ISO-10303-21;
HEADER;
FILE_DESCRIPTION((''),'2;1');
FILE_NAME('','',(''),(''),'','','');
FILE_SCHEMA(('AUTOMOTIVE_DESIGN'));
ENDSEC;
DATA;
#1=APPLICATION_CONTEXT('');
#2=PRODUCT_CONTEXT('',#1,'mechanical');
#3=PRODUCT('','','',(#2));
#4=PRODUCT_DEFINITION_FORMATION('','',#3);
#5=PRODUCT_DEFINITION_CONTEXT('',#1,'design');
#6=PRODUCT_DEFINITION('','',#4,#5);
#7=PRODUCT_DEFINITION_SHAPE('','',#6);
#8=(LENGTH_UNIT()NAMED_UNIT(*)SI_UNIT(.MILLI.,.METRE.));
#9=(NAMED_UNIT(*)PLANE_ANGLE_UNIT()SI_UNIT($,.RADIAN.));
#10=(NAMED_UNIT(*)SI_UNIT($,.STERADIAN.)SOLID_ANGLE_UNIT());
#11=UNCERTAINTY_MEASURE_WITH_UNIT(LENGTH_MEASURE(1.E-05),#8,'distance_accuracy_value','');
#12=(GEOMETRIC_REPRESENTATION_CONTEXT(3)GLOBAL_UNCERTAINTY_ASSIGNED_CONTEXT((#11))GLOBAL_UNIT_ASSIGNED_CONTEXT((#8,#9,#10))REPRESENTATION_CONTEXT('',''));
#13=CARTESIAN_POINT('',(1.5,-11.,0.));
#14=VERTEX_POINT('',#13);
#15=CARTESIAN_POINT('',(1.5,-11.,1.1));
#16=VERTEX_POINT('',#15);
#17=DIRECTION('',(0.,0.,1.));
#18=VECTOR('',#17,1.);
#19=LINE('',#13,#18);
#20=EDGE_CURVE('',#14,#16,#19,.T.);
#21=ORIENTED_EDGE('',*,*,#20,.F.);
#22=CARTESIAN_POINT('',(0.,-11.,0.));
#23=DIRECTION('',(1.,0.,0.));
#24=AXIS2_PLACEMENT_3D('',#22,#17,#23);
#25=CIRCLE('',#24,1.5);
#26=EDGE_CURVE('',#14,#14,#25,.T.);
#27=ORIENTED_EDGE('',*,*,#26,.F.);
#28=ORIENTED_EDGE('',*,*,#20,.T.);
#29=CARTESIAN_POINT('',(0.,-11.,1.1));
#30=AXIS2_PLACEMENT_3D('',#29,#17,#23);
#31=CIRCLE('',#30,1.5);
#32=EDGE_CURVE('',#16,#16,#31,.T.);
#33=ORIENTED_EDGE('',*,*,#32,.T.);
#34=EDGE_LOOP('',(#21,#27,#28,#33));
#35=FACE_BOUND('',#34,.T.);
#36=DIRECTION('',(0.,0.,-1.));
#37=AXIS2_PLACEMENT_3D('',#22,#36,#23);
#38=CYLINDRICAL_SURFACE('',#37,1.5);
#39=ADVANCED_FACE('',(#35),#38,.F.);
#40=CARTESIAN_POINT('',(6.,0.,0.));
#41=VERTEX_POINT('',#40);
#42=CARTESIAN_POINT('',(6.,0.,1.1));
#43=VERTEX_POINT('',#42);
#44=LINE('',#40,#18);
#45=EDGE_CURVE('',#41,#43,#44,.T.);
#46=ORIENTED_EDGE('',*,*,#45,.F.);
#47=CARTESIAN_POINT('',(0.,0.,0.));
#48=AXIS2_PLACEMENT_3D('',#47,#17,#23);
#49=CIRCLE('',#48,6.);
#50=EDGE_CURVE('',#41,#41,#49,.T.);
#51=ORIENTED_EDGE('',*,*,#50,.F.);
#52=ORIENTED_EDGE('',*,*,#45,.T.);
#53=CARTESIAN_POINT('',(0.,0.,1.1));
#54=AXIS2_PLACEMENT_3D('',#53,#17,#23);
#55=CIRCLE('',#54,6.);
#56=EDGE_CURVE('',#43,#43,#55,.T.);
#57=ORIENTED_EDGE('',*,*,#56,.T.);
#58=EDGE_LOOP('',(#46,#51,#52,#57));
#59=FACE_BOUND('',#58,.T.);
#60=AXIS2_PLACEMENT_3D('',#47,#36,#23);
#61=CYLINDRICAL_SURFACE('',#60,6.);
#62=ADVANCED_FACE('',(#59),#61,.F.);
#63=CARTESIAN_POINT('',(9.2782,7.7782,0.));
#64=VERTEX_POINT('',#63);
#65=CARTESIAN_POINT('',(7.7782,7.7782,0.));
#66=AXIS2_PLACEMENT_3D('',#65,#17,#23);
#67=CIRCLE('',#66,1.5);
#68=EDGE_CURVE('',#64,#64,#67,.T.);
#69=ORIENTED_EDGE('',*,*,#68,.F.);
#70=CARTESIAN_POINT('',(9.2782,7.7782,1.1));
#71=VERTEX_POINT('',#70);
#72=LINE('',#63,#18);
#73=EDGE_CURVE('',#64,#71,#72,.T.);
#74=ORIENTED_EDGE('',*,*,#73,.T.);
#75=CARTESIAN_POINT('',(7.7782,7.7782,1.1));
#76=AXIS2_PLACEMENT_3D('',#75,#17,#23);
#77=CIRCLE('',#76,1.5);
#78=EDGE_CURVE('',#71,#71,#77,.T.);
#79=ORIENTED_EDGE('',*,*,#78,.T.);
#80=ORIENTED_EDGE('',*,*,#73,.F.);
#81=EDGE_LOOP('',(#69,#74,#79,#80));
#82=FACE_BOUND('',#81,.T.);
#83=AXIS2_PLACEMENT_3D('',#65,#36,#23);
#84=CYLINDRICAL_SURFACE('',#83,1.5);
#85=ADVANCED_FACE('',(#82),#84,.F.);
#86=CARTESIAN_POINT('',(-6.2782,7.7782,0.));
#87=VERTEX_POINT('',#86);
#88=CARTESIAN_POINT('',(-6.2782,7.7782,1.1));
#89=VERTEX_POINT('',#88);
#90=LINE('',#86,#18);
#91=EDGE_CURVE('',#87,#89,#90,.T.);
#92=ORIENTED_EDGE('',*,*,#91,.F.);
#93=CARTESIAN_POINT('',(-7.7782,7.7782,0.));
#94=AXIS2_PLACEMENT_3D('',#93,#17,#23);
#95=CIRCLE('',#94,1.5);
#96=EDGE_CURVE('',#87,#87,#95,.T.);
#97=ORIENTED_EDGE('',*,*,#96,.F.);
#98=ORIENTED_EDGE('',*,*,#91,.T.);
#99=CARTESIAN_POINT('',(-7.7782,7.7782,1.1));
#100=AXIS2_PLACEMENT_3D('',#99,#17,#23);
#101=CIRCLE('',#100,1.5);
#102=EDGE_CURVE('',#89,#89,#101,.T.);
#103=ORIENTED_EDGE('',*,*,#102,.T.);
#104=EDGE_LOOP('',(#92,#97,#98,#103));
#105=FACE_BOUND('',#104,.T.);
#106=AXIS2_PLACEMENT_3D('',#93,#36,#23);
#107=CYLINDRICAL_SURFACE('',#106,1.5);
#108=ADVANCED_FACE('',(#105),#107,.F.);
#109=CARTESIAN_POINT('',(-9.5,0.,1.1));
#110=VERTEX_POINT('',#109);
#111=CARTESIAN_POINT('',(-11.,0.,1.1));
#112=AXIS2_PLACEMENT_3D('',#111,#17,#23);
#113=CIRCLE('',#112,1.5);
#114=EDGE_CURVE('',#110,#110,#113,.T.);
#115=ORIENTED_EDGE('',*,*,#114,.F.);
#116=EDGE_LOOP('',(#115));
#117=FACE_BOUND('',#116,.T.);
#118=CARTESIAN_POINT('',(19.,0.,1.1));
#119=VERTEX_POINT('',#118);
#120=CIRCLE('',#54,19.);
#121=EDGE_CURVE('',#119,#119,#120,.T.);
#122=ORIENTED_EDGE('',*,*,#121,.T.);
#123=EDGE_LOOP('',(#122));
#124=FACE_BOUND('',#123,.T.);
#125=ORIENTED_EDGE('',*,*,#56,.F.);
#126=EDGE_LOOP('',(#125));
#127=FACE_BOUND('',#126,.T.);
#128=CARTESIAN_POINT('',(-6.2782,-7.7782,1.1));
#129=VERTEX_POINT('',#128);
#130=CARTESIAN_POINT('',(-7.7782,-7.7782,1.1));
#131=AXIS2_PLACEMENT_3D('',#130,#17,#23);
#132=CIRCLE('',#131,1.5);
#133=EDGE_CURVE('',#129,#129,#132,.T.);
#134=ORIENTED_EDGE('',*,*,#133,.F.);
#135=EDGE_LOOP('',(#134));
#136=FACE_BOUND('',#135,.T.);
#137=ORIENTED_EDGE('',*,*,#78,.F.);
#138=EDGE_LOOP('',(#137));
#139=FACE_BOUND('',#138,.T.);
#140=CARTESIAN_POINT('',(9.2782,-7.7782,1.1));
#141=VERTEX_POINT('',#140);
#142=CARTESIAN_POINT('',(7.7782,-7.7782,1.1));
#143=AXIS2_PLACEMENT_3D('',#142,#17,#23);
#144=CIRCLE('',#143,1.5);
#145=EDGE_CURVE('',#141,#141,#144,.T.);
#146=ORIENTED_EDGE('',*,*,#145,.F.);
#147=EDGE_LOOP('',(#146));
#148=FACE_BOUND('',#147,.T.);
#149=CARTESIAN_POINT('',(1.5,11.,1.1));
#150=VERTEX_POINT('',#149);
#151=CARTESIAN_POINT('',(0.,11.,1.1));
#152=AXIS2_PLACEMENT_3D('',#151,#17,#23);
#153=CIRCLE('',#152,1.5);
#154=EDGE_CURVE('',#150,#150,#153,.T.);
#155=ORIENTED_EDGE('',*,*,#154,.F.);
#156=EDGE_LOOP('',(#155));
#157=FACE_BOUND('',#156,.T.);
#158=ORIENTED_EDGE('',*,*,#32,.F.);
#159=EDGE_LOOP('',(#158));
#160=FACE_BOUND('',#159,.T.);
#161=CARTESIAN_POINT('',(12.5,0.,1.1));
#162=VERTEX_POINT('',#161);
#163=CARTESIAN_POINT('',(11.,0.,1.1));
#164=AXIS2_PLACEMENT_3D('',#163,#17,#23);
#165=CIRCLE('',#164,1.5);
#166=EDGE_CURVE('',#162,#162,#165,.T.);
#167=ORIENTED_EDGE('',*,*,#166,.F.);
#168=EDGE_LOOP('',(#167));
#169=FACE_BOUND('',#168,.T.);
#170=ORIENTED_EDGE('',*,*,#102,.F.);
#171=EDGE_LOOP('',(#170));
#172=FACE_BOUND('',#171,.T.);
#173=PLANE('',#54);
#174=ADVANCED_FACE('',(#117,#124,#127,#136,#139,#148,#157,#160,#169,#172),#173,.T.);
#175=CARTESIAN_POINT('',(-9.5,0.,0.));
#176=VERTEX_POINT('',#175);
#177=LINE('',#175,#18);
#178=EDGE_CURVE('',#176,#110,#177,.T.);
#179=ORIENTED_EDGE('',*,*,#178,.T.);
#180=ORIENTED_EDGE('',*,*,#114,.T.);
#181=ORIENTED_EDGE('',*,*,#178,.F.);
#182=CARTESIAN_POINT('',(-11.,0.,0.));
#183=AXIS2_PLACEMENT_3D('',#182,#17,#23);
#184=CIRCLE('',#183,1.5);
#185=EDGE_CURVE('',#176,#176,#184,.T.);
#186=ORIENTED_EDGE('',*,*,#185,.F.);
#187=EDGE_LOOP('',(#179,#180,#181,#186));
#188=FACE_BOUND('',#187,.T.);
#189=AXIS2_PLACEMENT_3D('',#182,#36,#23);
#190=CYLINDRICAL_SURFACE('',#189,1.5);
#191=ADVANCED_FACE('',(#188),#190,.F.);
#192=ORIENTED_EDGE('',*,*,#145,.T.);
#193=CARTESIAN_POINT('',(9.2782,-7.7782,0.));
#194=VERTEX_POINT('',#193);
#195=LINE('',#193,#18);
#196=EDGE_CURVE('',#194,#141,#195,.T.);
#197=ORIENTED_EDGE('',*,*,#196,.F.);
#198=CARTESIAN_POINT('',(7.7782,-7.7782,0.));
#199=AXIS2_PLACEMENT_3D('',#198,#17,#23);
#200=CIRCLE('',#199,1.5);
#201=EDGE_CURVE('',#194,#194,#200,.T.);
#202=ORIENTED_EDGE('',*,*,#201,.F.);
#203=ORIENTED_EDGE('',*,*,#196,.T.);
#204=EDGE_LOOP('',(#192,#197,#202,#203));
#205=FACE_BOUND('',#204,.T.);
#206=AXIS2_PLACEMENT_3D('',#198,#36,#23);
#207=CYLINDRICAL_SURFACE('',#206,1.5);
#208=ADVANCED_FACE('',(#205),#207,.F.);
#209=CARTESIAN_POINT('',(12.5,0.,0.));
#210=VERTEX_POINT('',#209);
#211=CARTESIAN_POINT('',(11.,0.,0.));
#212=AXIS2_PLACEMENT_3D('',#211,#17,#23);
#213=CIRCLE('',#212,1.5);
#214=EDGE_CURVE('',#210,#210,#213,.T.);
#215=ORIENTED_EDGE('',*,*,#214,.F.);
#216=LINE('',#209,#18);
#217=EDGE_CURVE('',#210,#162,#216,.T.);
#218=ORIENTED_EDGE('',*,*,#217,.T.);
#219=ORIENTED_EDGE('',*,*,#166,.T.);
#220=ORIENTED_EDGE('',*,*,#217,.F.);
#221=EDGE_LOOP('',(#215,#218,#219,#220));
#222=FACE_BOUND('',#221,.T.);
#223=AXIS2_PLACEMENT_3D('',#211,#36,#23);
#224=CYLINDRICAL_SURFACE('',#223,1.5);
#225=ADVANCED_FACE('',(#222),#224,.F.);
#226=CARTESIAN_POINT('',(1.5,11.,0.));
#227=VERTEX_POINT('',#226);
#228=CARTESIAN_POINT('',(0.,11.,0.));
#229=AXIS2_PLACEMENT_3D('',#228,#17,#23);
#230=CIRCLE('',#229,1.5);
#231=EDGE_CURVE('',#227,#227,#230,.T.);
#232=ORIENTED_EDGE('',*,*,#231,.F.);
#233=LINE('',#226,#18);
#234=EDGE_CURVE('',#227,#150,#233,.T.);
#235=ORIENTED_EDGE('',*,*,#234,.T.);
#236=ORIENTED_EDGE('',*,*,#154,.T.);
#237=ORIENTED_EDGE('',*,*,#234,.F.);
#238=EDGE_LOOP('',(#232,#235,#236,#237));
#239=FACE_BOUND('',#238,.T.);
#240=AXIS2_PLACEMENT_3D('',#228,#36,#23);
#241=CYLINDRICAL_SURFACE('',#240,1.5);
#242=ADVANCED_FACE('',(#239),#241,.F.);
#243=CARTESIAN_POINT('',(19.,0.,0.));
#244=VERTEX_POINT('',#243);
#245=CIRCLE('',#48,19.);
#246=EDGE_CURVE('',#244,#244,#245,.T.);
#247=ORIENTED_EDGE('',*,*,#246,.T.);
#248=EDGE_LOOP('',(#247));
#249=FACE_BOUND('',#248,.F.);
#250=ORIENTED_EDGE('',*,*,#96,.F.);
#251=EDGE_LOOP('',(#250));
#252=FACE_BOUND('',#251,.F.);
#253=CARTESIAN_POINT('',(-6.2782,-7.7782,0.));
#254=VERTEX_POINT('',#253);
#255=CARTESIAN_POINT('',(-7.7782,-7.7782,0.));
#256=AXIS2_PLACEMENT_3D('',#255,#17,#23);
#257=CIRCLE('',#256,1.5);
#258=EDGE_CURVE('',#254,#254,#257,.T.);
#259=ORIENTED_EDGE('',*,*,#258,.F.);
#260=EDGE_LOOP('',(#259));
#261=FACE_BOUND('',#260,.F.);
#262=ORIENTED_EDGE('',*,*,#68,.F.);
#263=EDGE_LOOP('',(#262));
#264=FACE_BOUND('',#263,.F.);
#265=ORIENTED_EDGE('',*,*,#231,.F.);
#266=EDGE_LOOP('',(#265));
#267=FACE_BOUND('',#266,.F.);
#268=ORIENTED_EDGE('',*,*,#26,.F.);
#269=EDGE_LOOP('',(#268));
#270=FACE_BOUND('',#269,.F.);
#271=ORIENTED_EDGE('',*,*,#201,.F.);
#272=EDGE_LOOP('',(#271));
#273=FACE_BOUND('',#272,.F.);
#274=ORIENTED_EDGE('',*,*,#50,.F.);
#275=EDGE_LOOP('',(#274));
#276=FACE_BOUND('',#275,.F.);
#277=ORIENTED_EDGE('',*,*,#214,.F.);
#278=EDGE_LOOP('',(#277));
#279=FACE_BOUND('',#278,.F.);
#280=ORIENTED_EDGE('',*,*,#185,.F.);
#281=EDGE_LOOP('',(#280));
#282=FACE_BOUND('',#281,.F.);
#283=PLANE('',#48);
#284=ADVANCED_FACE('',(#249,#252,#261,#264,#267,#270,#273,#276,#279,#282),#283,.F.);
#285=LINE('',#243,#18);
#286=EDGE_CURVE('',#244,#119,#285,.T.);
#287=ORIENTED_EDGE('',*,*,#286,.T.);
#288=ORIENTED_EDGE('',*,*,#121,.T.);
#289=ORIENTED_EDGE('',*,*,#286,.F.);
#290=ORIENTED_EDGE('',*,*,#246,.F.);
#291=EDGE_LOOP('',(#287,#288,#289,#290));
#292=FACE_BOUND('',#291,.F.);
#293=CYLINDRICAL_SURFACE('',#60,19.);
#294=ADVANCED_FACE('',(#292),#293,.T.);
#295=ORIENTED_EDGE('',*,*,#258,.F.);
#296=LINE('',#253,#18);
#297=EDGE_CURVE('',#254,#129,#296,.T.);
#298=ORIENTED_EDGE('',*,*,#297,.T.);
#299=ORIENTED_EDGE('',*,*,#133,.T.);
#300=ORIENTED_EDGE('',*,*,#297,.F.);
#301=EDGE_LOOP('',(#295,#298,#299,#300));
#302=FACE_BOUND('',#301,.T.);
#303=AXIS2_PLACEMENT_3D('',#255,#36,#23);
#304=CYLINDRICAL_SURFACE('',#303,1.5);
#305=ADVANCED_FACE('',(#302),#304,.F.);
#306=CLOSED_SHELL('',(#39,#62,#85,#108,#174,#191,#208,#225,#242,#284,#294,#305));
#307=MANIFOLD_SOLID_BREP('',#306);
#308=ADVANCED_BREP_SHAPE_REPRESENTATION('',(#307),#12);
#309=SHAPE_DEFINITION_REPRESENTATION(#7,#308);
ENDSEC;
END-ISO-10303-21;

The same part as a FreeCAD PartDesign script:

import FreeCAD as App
import Part
import Sketcher
Q = App.Units.Quantity

doc = App.newDocument("Part")
body = doc.addObject("PartDesign::Body", "Body")

# Sketch on XY plane
sketch1 = body.newObject("Sketcher::SketchObject", "Sketch")
sketch1.AttachmentSupport = (doc.getObject("XY_Plane"), [""])
sketch1.MapMode = "FlatFace"
sketch1.addGeometry(Part.Circle(App.Vector(0, 0, 0), App.Vector(0, 0, 1), 19), False)
sketch1.addGeometry(Part.Circle(App.Vector(-7.8, -7.8, 0), App.Vector(0, 0, 1), 1.5), False)
sketch1.addGeometry(Part.Circle(App.Vector(0, -11, 0), App.Vector(0, 0, 1), 1.5), False)
sketch1.addGeometry(Part.Circle(App.Vector(7.8, -7.8, 0), App.Vector(0, 0, 1), 1.5), False)
sketch1.addGeometry(Part.Circle(App.Vector(-11, 0, 0), App.Vector(0, 0, 1), 1.5), False)
sketch1.addGeometry(Part.Circle(App.Vector(-7.8, 7.8, 0), App.Vector(0, 0, 1), 1.5), False)
sketch1.addGeometry(Part.Circle(App.Vector(0, 0, 0), App.Vector(0, 0, 1), 6), False)
sketch1.addGeometry(Part.Circle(App.Vector(7.8, 7.8, 0), App.Vector(0, 0, 1), 1.5), False)
sketch1.addGeometry(Part.Circle(App.Vector(11, 0, 0), App.Vector(0, 0, 1), 1.5), False)
sketch1.addGeometry(Part.Circle(App.Vector(0, 11, 0), App.Vector(0, 0, 1), 1.5), False)
sketch1.addConstraint(Sketcher.Constraint("Coincident", 0, 3, -1, 1))
sketch1.addConstraint(Sketcher.Constraint("Coincident", 6, 3, -1, 1))
sketch1.addConstraint(Sketcher.Constraint("Equal", 1, 2))
sketch1.addConstraint(Sketcher.Constraint("Equal", 2, 3))
sketch1.addConstraint(Sketcher.Constraint("Equal", 3, 4))
sketch1.addConstraint(Sketcher.Constraint("Equal", 4, 5))
sketch1.addConstraint(Sketcher.Constraint("Equal", 5, 7))
sketch1.addConstraint(Sketcher.Constraint("Equal", 7, 8))
sketch1.addConstraint(Sketcher.Constraint("Equal", 8, 9))
sketch1.addConstraint(Sketcher.Constraint("Symmetric", 3, 3, 5, 3, -1, 1))
sketch1.addConstraint(Sketcher.Constraint("Symmetric", 1, 3, 7, 3, -1, 1))
sketch1.addConstraint(Sketcher.Constraint("Symmetric", 4, 3, 8, 3, -1, 1))
sketch1.addConstraint(Sketcher.Constraint("Symmetric", 2, 3, 9, 3, -1, 1))
sketch1.addConstraint(Sketcher.Constraint("Symmetric", 1, 3, 3, 3, -2))
sketch1.addConstraint(Sketcher.Constraint("PointOnObject", 2, 3, -2))
sketch1.addConstraint(Sketcher.Constraint("PointOnObject", 4, 3, -1))
sketch1.addConstraint(Sketcher.Constraint("Diameter", 0, Q("38 mm")))
sketch1.addConstraint(Sketcher.Constraint("Diameter", 1, Q("3 mm")))
sketch1.addConstraint(Sketcher.Constraint("Diameter", 6, Q("12 mm")))
sketch1.addConstraint(Sketcher.Constraint("DistanceY", 2, 3, -1, 1, Q("11 mm")))
sketch1.addConstraint(Sketcher.Constraint("DistanceX", 4, 3, -1, 1, Q("11 mm")))
sketch1.addConstraint(Sketcher.Constraint("DistanceX", 1, 3, -1, 1, Q("7.7782 mm")))
sketch1.addConstraint(Sketcher.Constraint("DistanceY", 1, 3, -1, 1, Q("7.7782 mm")))
pad1 = body.newObject("PartDesign::Pad", "Pad")
pad1.Profile = sketch1
pad1.Length = 1.1

doc.recompute()
